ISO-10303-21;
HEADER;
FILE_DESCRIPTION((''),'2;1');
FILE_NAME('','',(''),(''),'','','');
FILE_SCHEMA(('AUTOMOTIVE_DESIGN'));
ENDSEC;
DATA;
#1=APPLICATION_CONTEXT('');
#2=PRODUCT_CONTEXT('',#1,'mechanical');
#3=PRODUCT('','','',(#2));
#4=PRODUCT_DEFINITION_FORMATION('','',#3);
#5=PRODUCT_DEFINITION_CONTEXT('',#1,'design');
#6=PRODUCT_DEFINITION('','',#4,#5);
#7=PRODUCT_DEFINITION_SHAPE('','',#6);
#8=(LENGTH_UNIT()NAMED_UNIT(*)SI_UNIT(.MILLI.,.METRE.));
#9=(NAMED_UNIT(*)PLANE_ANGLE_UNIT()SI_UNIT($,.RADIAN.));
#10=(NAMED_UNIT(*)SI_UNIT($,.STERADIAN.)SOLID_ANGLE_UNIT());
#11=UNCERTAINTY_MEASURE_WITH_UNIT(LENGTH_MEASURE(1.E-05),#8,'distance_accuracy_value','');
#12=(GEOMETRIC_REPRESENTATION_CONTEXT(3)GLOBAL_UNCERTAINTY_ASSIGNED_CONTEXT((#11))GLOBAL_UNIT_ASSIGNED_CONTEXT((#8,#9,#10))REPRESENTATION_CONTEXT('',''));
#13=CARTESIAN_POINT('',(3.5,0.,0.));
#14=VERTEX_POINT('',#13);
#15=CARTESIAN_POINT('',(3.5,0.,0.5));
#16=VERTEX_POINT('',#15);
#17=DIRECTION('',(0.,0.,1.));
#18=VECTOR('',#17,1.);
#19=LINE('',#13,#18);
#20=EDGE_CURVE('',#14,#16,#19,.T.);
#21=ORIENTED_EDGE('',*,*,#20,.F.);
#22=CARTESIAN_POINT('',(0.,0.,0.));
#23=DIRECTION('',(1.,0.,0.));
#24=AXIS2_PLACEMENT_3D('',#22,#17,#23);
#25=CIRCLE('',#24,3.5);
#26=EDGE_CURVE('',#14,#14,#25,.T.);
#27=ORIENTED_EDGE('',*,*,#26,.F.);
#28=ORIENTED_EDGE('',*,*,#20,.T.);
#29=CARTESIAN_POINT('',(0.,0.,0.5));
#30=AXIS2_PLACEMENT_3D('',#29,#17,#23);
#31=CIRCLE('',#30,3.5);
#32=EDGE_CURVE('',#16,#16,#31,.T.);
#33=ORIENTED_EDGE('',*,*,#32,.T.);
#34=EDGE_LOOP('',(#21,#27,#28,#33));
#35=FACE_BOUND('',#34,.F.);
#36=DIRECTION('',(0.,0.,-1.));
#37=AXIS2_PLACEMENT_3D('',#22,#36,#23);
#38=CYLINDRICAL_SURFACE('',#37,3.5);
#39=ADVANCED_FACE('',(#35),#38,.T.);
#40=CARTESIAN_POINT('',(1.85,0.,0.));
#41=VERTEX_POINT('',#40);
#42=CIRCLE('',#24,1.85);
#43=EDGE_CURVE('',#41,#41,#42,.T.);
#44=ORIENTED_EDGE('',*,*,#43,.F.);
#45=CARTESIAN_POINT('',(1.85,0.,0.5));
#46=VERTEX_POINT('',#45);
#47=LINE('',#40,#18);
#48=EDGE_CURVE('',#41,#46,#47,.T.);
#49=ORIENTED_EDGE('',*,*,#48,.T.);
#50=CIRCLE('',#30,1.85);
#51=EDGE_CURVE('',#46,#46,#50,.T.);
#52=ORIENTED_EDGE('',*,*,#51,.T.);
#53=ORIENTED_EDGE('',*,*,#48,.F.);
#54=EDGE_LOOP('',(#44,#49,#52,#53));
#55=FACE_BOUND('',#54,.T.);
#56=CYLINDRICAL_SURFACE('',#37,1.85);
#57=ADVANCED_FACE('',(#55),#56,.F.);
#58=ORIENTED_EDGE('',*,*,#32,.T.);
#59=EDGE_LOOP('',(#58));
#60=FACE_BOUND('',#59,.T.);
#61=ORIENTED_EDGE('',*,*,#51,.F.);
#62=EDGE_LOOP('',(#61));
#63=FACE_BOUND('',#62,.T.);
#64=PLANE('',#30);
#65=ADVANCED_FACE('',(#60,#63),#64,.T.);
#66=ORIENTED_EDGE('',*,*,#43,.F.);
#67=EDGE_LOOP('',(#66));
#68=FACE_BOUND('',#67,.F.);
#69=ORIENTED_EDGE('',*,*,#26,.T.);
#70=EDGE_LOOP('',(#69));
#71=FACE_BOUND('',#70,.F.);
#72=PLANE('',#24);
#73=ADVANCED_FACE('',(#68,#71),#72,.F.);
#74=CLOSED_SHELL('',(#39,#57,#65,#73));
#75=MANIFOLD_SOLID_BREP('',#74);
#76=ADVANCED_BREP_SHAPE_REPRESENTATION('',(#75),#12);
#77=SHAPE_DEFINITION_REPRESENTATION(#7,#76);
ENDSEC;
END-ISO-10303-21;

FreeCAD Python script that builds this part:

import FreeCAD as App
import Part
import Sketcher
from FreeCAD import Vector

doc = App.newDocument("Part")
body = doc.addObject("PartDesign::Body", "Body")

# Sketch on XY plane
sketch1 = doc.addObject("Sketcher::SketchObject", "Sketch")
body.addObject(sketch1)
sketch1.AttachmentSupport = (doc.XY_Plane, [""])
sketch1.MapMode = "FlatFace"
sketch1.addGeometry([
    Part.Circle(Vector(0, 0, 0), Vector(0, 0, 1), 3.5),
    Part.Circle(Vector(0, 0, 0), Vector(0, 0, 1), 1.9),
], False)
sketch1.addConstraint([
    Sketcher.Constraint("Coincident", 0, 3, -1, 1),
    Sketcher.Constraint("Coincident", 1, 3, -1, 1),
    Sketcher.Constraint("Diameter", 0, 7.0),
    Sketcher.Constraint("Diameter", 1, 3.7),
])
pad1 = doc.addObject("PartDesign::Pad", "Pad")
body.addObject(pad1)
pad1.Profile = sketch1
pad1.Length = 0.5

doc.recompute()
